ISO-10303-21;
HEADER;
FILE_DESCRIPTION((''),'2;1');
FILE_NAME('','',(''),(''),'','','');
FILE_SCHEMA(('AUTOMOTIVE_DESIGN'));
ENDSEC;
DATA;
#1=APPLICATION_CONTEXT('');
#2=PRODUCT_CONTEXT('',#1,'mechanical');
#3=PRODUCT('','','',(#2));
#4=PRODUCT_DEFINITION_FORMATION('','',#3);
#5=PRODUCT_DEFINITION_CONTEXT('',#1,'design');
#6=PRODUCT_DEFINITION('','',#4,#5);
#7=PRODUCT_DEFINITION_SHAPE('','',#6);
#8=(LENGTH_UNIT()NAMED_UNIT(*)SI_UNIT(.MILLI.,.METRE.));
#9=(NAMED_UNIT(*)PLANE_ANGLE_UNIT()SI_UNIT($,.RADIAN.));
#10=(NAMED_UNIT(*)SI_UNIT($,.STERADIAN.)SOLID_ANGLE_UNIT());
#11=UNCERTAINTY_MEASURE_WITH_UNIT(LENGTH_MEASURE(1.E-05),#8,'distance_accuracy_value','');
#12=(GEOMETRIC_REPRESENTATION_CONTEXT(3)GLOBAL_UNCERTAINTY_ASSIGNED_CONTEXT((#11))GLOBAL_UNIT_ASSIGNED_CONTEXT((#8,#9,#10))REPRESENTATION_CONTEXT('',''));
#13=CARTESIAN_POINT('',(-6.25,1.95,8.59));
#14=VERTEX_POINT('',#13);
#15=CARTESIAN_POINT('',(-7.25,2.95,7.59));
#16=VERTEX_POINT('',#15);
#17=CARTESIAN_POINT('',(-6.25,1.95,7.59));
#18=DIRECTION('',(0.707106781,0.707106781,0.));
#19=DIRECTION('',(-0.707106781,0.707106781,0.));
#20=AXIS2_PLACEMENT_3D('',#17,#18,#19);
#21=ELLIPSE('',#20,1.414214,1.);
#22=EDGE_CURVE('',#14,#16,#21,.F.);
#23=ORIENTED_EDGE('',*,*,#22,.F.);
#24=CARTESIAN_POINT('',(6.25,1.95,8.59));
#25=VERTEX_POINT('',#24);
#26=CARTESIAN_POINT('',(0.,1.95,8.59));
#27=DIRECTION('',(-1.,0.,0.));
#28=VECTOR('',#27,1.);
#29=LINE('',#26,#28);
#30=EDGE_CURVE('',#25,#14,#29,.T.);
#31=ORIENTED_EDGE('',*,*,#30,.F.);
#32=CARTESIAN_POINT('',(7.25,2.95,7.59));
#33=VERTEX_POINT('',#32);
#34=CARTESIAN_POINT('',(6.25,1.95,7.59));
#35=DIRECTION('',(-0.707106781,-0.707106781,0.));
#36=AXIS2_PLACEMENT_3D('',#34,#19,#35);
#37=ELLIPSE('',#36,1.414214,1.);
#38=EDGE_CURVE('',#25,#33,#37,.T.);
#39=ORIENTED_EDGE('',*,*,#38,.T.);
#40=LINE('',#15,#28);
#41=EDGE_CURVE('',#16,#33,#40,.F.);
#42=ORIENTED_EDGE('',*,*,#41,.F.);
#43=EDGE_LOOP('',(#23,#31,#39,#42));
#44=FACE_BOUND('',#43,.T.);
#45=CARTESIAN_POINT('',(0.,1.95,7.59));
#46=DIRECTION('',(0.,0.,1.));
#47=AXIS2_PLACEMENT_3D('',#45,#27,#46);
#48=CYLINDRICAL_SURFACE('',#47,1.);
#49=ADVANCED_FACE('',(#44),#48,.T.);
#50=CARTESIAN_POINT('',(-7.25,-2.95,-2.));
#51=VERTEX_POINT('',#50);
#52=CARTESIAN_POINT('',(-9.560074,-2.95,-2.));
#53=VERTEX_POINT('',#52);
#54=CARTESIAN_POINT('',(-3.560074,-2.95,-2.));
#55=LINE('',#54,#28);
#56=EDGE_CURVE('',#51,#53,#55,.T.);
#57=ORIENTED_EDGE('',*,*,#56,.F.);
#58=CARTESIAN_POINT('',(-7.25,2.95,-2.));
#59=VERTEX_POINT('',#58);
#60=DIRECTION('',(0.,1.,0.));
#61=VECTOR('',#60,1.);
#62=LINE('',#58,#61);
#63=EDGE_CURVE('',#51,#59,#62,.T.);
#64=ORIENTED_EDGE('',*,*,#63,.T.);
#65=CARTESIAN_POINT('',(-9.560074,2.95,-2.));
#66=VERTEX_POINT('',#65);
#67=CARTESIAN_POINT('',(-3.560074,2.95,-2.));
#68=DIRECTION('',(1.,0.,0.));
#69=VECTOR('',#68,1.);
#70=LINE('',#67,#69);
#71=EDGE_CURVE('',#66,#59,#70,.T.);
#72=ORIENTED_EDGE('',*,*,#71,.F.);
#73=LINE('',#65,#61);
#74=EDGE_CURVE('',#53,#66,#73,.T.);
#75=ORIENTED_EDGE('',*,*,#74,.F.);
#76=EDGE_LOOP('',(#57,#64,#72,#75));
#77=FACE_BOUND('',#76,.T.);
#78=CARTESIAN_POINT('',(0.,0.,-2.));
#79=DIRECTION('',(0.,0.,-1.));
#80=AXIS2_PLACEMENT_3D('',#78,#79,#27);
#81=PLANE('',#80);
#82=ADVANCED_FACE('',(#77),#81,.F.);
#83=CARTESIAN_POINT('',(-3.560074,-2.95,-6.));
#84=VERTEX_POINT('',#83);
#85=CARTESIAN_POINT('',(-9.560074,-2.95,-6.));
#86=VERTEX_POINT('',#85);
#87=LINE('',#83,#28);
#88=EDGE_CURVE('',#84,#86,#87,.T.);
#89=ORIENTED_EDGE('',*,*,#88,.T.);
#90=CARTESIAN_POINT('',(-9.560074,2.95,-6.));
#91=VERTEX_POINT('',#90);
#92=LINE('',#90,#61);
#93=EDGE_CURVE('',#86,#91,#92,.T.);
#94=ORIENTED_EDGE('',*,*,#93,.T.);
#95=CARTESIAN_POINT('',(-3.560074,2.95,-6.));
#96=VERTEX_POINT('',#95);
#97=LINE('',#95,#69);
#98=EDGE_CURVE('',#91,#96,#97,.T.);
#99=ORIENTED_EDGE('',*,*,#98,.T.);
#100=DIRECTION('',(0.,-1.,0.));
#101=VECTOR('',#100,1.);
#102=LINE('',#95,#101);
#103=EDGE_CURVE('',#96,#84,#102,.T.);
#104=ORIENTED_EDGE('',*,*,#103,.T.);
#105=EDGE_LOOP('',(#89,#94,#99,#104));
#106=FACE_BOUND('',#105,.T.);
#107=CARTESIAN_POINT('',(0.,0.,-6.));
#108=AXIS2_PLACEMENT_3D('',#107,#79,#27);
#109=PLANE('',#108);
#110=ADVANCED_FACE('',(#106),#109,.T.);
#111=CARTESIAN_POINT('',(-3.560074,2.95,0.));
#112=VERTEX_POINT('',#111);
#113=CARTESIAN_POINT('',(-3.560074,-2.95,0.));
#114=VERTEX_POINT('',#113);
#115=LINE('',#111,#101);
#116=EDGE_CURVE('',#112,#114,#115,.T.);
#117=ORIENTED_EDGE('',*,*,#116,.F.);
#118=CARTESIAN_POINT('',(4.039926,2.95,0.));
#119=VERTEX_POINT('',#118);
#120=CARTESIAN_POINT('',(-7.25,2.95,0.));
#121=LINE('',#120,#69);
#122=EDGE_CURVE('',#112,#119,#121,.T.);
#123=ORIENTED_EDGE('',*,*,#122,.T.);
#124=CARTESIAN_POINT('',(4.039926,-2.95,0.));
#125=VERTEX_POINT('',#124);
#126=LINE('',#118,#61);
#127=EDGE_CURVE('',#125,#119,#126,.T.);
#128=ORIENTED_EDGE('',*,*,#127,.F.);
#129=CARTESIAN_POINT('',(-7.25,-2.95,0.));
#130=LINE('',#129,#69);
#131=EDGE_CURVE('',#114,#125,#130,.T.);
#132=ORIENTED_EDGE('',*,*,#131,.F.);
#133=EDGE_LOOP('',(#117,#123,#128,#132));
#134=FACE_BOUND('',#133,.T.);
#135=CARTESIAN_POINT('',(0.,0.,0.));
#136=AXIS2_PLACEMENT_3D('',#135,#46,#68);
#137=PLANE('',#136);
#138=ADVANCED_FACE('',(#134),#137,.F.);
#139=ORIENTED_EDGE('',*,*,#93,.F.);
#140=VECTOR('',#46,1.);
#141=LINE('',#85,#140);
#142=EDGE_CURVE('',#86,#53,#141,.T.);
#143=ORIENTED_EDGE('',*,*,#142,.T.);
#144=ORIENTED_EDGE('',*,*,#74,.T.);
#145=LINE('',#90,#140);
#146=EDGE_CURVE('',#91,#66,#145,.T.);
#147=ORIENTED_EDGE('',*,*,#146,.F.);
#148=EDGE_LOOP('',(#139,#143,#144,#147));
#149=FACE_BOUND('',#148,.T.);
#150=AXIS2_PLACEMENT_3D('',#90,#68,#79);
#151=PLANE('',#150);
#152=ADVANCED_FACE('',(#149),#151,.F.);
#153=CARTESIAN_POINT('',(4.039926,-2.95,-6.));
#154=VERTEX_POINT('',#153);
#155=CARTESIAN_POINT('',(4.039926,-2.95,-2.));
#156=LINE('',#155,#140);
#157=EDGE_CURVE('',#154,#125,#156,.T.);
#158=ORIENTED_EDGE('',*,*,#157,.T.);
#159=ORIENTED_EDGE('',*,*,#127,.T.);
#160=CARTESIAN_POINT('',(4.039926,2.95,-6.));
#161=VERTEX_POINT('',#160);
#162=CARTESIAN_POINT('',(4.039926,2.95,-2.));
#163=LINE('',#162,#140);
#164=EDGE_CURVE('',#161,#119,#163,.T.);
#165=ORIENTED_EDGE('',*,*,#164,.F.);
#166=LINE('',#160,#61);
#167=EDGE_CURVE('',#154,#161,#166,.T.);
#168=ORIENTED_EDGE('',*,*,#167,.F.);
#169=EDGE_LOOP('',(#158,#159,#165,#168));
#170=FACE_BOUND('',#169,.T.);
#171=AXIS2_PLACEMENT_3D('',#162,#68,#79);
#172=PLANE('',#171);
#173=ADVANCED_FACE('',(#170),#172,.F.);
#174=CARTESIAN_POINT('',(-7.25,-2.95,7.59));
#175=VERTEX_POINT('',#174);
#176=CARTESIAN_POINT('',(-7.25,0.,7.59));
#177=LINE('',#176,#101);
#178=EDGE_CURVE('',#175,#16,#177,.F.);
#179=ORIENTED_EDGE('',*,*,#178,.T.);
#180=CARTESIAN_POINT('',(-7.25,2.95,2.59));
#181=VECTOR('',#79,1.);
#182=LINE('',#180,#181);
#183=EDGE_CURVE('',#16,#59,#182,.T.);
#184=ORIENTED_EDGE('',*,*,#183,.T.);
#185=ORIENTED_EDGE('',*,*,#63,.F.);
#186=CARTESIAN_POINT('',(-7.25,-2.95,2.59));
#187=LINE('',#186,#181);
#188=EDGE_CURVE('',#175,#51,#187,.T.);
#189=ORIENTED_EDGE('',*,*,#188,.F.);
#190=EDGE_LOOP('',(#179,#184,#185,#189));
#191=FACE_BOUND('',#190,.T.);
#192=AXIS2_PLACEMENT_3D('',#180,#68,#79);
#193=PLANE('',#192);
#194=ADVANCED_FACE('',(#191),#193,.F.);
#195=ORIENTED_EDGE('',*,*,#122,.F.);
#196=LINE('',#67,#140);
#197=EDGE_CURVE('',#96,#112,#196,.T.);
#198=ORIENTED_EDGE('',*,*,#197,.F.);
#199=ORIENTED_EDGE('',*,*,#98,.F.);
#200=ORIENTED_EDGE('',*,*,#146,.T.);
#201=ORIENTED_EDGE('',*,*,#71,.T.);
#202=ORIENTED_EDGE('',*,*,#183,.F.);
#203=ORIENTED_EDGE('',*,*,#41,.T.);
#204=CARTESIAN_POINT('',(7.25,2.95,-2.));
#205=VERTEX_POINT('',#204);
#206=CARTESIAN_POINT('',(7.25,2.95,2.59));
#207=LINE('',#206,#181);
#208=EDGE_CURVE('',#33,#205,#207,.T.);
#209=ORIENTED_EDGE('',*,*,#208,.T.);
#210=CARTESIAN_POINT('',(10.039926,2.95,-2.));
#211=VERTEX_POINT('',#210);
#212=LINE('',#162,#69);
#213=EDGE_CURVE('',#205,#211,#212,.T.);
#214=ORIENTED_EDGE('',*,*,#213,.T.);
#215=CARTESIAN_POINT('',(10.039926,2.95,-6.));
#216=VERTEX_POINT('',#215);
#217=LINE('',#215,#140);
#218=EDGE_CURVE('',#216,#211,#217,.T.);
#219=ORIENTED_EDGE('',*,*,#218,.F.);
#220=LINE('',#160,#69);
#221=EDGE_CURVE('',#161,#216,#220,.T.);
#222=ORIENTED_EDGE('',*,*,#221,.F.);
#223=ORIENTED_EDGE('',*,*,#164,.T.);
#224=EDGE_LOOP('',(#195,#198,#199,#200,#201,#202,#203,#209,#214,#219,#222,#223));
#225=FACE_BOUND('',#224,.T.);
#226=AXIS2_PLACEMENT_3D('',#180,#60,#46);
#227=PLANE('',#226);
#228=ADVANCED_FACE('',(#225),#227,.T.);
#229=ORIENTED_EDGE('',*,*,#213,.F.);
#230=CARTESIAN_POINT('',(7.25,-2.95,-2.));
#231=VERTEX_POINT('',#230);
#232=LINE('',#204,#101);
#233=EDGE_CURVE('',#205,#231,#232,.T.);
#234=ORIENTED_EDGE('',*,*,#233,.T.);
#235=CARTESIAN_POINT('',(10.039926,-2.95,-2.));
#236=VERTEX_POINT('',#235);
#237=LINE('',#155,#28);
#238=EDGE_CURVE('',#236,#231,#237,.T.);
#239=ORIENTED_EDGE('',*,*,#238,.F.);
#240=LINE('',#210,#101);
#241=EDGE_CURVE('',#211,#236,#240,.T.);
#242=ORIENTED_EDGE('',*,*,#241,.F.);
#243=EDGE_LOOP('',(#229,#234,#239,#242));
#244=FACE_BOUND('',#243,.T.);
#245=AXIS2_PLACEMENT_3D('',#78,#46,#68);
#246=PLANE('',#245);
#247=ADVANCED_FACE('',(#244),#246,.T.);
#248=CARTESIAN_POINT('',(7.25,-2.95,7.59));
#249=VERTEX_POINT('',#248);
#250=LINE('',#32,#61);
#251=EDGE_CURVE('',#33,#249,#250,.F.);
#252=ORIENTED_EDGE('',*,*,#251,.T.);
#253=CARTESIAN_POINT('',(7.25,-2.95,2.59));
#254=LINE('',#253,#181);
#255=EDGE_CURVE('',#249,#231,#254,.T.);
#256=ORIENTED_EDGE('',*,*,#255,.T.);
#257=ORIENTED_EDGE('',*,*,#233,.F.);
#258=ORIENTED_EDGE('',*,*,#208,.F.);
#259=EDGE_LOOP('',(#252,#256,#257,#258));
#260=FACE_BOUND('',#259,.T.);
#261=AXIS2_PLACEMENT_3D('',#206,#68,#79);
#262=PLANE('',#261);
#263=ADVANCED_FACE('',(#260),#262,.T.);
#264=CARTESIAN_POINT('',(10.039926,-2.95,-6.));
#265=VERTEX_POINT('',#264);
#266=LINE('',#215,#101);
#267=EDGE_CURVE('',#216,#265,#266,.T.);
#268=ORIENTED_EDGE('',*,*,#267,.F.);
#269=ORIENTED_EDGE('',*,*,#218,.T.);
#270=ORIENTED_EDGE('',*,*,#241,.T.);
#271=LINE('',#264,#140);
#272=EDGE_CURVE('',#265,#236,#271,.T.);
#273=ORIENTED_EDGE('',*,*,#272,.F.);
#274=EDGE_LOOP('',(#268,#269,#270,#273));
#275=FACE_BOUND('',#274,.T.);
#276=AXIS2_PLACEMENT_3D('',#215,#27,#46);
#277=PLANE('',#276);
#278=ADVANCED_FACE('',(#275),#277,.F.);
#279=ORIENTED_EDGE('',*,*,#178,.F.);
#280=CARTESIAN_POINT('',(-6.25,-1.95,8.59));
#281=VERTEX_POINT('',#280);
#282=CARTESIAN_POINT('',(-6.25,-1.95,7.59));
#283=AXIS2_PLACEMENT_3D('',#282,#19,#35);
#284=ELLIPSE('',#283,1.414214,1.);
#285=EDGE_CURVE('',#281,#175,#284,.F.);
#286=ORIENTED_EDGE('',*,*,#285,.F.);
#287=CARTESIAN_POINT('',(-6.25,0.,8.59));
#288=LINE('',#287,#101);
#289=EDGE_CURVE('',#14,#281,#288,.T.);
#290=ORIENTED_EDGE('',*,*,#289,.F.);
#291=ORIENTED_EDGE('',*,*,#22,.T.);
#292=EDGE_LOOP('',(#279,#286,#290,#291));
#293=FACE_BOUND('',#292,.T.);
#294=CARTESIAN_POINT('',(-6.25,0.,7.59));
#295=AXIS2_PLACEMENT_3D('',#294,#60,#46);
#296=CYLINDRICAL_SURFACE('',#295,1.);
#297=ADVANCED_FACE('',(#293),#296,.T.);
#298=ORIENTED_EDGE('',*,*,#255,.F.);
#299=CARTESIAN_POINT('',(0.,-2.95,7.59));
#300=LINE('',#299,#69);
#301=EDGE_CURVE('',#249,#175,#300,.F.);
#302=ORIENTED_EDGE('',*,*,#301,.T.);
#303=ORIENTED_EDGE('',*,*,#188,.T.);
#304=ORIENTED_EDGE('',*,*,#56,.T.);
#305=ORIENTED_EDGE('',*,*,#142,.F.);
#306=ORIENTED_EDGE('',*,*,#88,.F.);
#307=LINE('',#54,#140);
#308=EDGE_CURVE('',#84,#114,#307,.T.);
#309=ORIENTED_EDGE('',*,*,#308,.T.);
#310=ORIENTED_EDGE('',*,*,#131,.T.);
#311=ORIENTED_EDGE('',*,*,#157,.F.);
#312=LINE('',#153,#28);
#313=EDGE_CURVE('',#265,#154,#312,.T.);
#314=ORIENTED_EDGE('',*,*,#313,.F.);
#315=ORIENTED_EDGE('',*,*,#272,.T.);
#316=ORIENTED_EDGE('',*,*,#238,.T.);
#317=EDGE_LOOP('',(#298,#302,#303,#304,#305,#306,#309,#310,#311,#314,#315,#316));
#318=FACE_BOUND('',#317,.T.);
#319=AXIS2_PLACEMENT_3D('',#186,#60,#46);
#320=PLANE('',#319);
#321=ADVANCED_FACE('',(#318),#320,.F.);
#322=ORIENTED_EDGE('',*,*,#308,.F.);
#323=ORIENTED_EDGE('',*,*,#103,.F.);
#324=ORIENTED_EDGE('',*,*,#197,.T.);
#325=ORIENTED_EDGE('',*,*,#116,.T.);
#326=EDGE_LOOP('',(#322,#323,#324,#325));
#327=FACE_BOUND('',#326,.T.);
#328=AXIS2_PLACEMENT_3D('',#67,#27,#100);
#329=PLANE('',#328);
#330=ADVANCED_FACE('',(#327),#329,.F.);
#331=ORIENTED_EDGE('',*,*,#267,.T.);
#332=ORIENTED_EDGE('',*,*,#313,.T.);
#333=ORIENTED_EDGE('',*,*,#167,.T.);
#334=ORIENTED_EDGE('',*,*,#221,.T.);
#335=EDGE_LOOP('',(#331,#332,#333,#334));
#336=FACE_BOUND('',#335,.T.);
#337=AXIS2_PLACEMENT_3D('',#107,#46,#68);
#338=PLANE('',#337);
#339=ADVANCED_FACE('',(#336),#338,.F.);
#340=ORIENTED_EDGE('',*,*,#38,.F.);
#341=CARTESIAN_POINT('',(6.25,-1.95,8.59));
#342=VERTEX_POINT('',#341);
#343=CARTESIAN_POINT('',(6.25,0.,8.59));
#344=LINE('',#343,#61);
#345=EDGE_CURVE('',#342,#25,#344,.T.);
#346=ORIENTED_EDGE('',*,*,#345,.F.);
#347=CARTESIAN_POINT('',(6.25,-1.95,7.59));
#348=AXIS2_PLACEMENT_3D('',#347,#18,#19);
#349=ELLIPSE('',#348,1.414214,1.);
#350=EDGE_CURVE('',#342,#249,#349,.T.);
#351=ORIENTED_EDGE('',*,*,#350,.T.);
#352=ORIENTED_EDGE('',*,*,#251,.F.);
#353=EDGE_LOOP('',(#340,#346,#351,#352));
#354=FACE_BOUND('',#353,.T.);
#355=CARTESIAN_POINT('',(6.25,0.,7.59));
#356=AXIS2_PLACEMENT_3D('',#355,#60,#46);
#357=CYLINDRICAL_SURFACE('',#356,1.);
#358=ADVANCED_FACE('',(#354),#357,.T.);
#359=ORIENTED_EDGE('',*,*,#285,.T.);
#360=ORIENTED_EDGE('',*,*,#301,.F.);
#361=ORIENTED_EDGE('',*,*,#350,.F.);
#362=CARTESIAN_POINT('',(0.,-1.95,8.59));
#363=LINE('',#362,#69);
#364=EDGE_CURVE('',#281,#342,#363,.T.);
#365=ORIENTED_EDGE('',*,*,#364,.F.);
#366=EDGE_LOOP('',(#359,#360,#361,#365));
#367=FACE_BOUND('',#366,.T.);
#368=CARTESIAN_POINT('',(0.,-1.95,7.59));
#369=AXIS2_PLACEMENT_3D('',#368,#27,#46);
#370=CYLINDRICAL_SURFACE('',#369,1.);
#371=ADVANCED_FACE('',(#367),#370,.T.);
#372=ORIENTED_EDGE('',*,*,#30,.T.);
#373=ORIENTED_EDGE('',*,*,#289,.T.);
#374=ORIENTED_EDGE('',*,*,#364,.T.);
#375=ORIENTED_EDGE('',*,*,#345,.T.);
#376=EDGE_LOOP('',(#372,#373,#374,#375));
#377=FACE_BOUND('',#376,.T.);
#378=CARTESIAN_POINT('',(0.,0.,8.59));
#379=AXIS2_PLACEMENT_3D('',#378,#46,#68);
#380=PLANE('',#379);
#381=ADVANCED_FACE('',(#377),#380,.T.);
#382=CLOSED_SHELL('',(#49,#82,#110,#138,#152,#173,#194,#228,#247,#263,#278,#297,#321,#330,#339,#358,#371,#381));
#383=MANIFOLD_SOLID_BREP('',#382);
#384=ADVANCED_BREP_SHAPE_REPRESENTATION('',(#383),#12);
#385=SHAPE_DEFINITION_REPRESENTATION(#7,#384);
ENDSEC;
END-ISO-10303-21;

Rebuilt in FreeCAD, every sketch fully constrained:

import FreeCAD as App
import Part
import Sketcher


def edges_at(feature, points):
    """Names of the edges that pass closest to the given points."""
    edges = feature.Shape.Edges
    near = lambda p: min(range(len(edges)), key=lambda i: edges[i].distToShape(Part.Vertex(*p))[0])
    return sorted({f"Edge{near(p) + 1}" for p in points})

doc = App.newDocument("Part")
body = doc.addObject("PartDesign::Body", "Body")

# Sketch on XY plane
sketch1 = body.newObject("Sketcher::SketchObject", "Sketch")
sketch1.AttachmentSupport = (doc.getObject("XY_Plane"), [""])
sketch1.MapMode = "FlatFace"
sketch1.addGeometry(Part.LineSegment(App.Vector(-7, 3, 0), App.Vector(-7, -3, 0)), False)
sketch1.addGeometry(Part.LineSegment(App.Vector(-7, -3, 0), App.Vector(7, -3, 0)), False)
sketch1.addGeometry(Part.LineSegment(App.Vector(7, -3, 0), App.Vector(7, 3, 0)), False)
sketch1.addGeometry(Part.LineSegment(App.Vector(7, 3, 0), App.Vector(-7, 3, 0)), False)
sketch1.addConstraint(Sketcher.Constraint("Coincident", 0, 2, 1, 1))
sketch1.addConstraint(Sketcher.Constraint("Coincident", 1, 2, 2, 1))
sketch1.addConstraint(Sketcher.Constraint("Coincident", 2, 2, 3, 1))
sketch1.addConstraint(Sketcher.Constraint("Coincident", 3, 2, 0, 1))
sketch1.addConstraint(Sketcher.Constraint("Vertical", 0))
sketch1.addConstraint(Sketcher.Constraint("Horizontal", 1))
sketch1.addConstraint(Sketcher.Constraint("Vertical", 2))
sketch1.addConstraint(Sketcher.Constraint("Horizontal", 3))
sketch1.addConstraint(Sketcher.Constraint("Symmetric", 0, 2, 2, 2, -1, 1))
sketch1.addConstraint(Sketcher.Constraint("DistanceX", 1, 1, 1, 2, 14.5))
sketch1.addConstraint(Sketcher.Constraint("DistanceY", 0, 2, 0, 1, 5.9))
pad1 = body.newObject("PartDesign::Pad", "Pad")
pad1.Profile = sketch1
pad1.Length = 2.59

# Sketch on XY plane
sketch2 = body.newObject("Sketcher::SketchObject", "Sketch001")
sketch2.AttachmentSupport = (doc.getObject("XY_Plane"), [""])
sketch2.MapMode = "FlatFace"
sketch2.addGeometry(Part.LineSegment(App.Vector(-3.6, 3, 0), App.Vector(-3.6, -3, 0)), False)
sketch2.addGeometry(Part.LineSegment(App.Vector(-3.6, -3, 0), App.Vector(-7.2, -3, 0)), False)
sketch2.addGeometry(Part.LineSegment(App.Vector(-7.2, -3, 0), App.Vector(-7.2, 3, 0)), False)
sketch2.addGeometry(Part.LineSegment(App.Vector(-7.2, 3, 0), App.Vector(-3.6, 3, 0)), False)
sketch2.addGeometry(Part.LineSegment(App.Vector(7.2, 3, 0), App.Vector(7.2, -3, 0)), False)
sketch2.addGeometry(Part.LineSegment(App.Vector(7.2, -3, 0), App.Vector(4, -3, 0)), False)
sketch2.addGeometry(Part.LineSegment(App.Vector(4, -3, 0), App.Vector(4, 3, 0)), False)
sketch2.addGeometry(Part.LineSegment(App.Vector(4, 3, 0), App.Vector(7.2, 3, 0)), False)
sketch2.addConstraint(Sketcher.Constraint("Coincident", 0, 2, 1, 1))
sketch2.addConstraint(Sketcher.Constraint("Coincident", 1, 2, 2, 1))
sketch2.addConstraint(Sketcher.Constraint("Coincident", 2, 2, 3, 1))
sketch2.addConstraint(Sketcher.Constraint("Coincident", 3, 2, 0, 1))
sketch2.addConstraint(Sketcher.Constraint("Coincident", 4, 2, 5, 1))
sketch2.addConstraint(Sketcher.Constraint("Coincident", 5, 2, 6, 1))
sketch2.addConstraint(Sketcher.Constraint("Coincident", 6, 2, 7, 1))
sketch2.addConstraint(Sketcher.Constraint("Coincident", 7, 2, 4, 1))
sketch2.addConstraint(Sketcher.Constraint("Vertical", 0))
sketch2.addConstraint(Sketcher.Constraint("Horizontal", 1))
sketch2.addConstraint(Sketcher.Constraint("Vertical", 2))
sketch2.addConstraint(Sketcher.Constraint("Horizontal", 3))
sketch2.addConstraint(Sketcher.Constraint("Vertical", 4))
sketch2.addConstraint(Sketcher.Constraint("Horizontal", 5))
sketch2.addConstraint(Sketcher.Constraint("Vertical", 6))
sketch2.addConstraint(Sketcher.Constraint("Horizontal", 7))
sketch2.addConstraint(Sketcher.Constraint("Symmetric", 2, 2, 4, 2, -1, 1))
sketch2.addConstraint(Sketcher.Constraint("Horizontal", 1, 2, 4, 2))
sketch2.addConstraint(Sketcher.Constraint("Horizontal", 3, 2, 6, 2))
sketch2.addConstraint(Sketcher.Constraint("DistanceY", 0, 2, 0, 1, 5.9))
sketch2.addConstraint(Sketcher.Constraint("DistanceX", 1, 2, 4, 2, 14.5))
sketch2.addConstraint(Sketcher.Constraint("DistanceX", 0, 2, 5, 2, 7.6))
sketch2.addConstraint(Sketcher.Constraint("DistanceX", 1, 2, 1, 1, 3.689926))
pad2 = body.newObject("PartDesign::Pad", "Pad001")
pad2.Profile = sketch2
pad2.Length = 2
pad2.Reversed = True

# Sketch on XY plane
sketch3 = body.newObject("Sketcher::SketchObject", "Sketch002")
sketch3.AttachmentSupport = (doc.getObject("XY_Plane"), [""])
sketch3.MapMode = "FlatFace"
sketch3.AttachmentOffset = App.Placement(App.Vector(0, 0, -2), App.Rotation())
sketch3.addGeometry(Part.LineSegment(App.Vector(10, 3, 0), App.Vector(10, -3, 0)), False)
sketch3.addGeometry(Part.LineSegment(App.Vector(10, -3, 0), App.Vector(4, -3, 0)), False)
sketch3.addGeometry(Part.LineSegment(App.Vector(4, -3, 0), App.Vector(4, 3, 0)), False)
sketch3.addGeometry(Part.LineSegment(App.Vector(4, 3, 0), App.Vector(10, 3, 0)), False)
sketch3.addGeometry(Part.LineSegment(App.Vector(-4, 3, 0), App.Vector(-4, -3, 0)), False)
sketch3.addGeometry(Part.LineSegment(App.Vector(-4, -3, 0), App.Vector(-10, -3, 0)), False)
sketch3.addGeometry(Part.LineSegment(App.Vector(-10, -3, 0), App.Vector(-10, 3, 0)), False)
sketch3.addGeometry(Part.LineSegment(App.Vector(-10, 3, 0), App.Vector(-4, 3, 0)), False)
sketch3.addConstraint(Sketcher.Constraint("Coincident", 0, 2, 1, 1))
sketch3.addConstraint(Sketcher.Constraint("Coincident", 1, 2, 2, 1))
sketch3.addConstraint(Sketcher.Constraint("Coincident", 2, 2, 3, 1))
sketch3.addConstraint(Sketcher.Constraint("Coincident", 3, 2, 0, 1))
sketch3.addConstraint(Sketcher.Constraint("Coincident", 4, 2, 5, 1))
sketch3.addConstraint(Sketcher.Constraint("Coincident", 5, 2, 6, 1))
sketch3.addConstraint(Sketcher.Constraint("Coincident", 6, 2, 7, 1))
sketch3.addConstraint(Sketcher.Constraint("Coincident", 7, 2, 4, 1))
sketch3.addConstraint(Sketcher.Constraint("Vertical", 0))
sketch3.addConstraint(Sketcher.Constraint("Horizontal", 1))
sketch3.addConstraint(Sketcher.Constraint("Vertical", 2))
sketch3.addConstraint(Sketcher.Constraint("Horizontal", 3))
sketch3.addConstraint(Sketcher.Constraint("Vertical", 4))
sketch3.addConstraint(Sketcher.Constraint("Horizontal", 5))
sketch3.addConstraint(Sketcher.Constraint("Vertical", 6))
sketch3.addConstraint(Sketcher.Constraint("Horizontal", 7))
sketch3.addConstraint(Sketcher.Constraint("Horizontal", 1, 2, 4, 2))
sketch3.addConstraint(Sketcher.Constraint("Horizontal", 3, 2, 6, 2))
sketch3.addConstraint(Sketcher.Constraint("Equal", 3, 5))
sketch3.addConstraint(Sketcher.Constraint("DistanceX", 1, 2, 1, 1, 6.0))
sketch3.addConstraint(Sketcher.Constraint("DistanceY", 0, 2, 0, 1, 5.9))
sketch3.addConstraint(Sketcher.Constraint("DistanceX", 4, 2, 1, 2, 7.6))
sketch3.addConstraint(Sketcher.Constraint("DistanceY", 0, 2, -1, 1, 2.95))
sketch3.addConstraint(Sketcher.Constraint("DistanceX", -1, 1, 0, 2, 10.039926))
pad3 = body.newObject("PartDesign::Pad", "Pad002")
pad3.Profile = sketch3
pad3.Length = 4
pad3.Reversed = True

# Sketch on XY plane
sketch4 = body.newObject("Sketcher::SketchObject", "Sketch003")
sketch4.AttachmentSupport = (doc.getObject("XY_Plane"), [""])
sketch4.MapMode = "FlatFace"
sketch4.AttachmentOffset = App.Placement(App.Vector(0, 0, 2.59), App.Rotation())
sketch4.addGeometry(Part.LineSegment(App.Vector(-7, 3, 0), App.Vector(-7, -3, 0)), False)
sketch4.addGeometry(Part.LineSegment(App.Vector(-7, -3, 0), App.Vector(7, -3, 0)), False)
sketch4.addGeometry(Part.LineSegment(App.Vector(7, -3, 0), App.Vector(7, 3, 0)), False)
sketch4.addGeometry(Part.LineSegment(App.Vector(7, 3, 0), App.Vector(-7, 3, 0)), False)
sketch4.addConstraint(Sketcher.Constraint("Coincident", 0, 2, 1, 1))
sketch4.addConstraint(Sketcher.Constraint("Coincident", 1, 2, 2, 1))
sketch4.addConstraint(Sketcher.Constraint("Coincident", 2, 2, 3, 1))
sketch4.addConstraint(Sketcher.Constraint("Coincident", 3, 2, 0, 1))
sketch4.addConstraint(Sketcher.Constraint("Vertical", 0))
sketch4.addConstraint(Sketcher.Constraint("Horizontal", 1))
sketch4.addConstraint(Sketcher.Constraint("Vertical", 2))
sketch4.addConstraint(Sketcher.Constraint("Horizontal", 3))
sketch4.addConstraint(Sketcher.Constraint("Symmetric", 0, 2, 2, 2, -1, 1))
sketch4.addConstraint(Sketcher.Constraint("DistanceX", 1, 1, 1, 2, 14.5))
sketch4.addConstraint(Sketcher.Constraint("DistanceY", 0, 2, 0, 1, 5.9))
pad4 = body.newObject("PartDesign::Pad", "Pad003")
pad4.Profile = sketch4
pad4.Length = 6
doc.recompute()

fillet = body.newObject("PartDesign::Fillet", "Fillet")
fillet.Base = (pad4, edges_at(pad4, [
    (0, 2.95, 8.59),
    (-7.25, 0, 8.59),
    (0, -2.95, 8.59),
    (7.25, 0, 8.59),
]))
fillet.Radius = 1

doc.recompute()
